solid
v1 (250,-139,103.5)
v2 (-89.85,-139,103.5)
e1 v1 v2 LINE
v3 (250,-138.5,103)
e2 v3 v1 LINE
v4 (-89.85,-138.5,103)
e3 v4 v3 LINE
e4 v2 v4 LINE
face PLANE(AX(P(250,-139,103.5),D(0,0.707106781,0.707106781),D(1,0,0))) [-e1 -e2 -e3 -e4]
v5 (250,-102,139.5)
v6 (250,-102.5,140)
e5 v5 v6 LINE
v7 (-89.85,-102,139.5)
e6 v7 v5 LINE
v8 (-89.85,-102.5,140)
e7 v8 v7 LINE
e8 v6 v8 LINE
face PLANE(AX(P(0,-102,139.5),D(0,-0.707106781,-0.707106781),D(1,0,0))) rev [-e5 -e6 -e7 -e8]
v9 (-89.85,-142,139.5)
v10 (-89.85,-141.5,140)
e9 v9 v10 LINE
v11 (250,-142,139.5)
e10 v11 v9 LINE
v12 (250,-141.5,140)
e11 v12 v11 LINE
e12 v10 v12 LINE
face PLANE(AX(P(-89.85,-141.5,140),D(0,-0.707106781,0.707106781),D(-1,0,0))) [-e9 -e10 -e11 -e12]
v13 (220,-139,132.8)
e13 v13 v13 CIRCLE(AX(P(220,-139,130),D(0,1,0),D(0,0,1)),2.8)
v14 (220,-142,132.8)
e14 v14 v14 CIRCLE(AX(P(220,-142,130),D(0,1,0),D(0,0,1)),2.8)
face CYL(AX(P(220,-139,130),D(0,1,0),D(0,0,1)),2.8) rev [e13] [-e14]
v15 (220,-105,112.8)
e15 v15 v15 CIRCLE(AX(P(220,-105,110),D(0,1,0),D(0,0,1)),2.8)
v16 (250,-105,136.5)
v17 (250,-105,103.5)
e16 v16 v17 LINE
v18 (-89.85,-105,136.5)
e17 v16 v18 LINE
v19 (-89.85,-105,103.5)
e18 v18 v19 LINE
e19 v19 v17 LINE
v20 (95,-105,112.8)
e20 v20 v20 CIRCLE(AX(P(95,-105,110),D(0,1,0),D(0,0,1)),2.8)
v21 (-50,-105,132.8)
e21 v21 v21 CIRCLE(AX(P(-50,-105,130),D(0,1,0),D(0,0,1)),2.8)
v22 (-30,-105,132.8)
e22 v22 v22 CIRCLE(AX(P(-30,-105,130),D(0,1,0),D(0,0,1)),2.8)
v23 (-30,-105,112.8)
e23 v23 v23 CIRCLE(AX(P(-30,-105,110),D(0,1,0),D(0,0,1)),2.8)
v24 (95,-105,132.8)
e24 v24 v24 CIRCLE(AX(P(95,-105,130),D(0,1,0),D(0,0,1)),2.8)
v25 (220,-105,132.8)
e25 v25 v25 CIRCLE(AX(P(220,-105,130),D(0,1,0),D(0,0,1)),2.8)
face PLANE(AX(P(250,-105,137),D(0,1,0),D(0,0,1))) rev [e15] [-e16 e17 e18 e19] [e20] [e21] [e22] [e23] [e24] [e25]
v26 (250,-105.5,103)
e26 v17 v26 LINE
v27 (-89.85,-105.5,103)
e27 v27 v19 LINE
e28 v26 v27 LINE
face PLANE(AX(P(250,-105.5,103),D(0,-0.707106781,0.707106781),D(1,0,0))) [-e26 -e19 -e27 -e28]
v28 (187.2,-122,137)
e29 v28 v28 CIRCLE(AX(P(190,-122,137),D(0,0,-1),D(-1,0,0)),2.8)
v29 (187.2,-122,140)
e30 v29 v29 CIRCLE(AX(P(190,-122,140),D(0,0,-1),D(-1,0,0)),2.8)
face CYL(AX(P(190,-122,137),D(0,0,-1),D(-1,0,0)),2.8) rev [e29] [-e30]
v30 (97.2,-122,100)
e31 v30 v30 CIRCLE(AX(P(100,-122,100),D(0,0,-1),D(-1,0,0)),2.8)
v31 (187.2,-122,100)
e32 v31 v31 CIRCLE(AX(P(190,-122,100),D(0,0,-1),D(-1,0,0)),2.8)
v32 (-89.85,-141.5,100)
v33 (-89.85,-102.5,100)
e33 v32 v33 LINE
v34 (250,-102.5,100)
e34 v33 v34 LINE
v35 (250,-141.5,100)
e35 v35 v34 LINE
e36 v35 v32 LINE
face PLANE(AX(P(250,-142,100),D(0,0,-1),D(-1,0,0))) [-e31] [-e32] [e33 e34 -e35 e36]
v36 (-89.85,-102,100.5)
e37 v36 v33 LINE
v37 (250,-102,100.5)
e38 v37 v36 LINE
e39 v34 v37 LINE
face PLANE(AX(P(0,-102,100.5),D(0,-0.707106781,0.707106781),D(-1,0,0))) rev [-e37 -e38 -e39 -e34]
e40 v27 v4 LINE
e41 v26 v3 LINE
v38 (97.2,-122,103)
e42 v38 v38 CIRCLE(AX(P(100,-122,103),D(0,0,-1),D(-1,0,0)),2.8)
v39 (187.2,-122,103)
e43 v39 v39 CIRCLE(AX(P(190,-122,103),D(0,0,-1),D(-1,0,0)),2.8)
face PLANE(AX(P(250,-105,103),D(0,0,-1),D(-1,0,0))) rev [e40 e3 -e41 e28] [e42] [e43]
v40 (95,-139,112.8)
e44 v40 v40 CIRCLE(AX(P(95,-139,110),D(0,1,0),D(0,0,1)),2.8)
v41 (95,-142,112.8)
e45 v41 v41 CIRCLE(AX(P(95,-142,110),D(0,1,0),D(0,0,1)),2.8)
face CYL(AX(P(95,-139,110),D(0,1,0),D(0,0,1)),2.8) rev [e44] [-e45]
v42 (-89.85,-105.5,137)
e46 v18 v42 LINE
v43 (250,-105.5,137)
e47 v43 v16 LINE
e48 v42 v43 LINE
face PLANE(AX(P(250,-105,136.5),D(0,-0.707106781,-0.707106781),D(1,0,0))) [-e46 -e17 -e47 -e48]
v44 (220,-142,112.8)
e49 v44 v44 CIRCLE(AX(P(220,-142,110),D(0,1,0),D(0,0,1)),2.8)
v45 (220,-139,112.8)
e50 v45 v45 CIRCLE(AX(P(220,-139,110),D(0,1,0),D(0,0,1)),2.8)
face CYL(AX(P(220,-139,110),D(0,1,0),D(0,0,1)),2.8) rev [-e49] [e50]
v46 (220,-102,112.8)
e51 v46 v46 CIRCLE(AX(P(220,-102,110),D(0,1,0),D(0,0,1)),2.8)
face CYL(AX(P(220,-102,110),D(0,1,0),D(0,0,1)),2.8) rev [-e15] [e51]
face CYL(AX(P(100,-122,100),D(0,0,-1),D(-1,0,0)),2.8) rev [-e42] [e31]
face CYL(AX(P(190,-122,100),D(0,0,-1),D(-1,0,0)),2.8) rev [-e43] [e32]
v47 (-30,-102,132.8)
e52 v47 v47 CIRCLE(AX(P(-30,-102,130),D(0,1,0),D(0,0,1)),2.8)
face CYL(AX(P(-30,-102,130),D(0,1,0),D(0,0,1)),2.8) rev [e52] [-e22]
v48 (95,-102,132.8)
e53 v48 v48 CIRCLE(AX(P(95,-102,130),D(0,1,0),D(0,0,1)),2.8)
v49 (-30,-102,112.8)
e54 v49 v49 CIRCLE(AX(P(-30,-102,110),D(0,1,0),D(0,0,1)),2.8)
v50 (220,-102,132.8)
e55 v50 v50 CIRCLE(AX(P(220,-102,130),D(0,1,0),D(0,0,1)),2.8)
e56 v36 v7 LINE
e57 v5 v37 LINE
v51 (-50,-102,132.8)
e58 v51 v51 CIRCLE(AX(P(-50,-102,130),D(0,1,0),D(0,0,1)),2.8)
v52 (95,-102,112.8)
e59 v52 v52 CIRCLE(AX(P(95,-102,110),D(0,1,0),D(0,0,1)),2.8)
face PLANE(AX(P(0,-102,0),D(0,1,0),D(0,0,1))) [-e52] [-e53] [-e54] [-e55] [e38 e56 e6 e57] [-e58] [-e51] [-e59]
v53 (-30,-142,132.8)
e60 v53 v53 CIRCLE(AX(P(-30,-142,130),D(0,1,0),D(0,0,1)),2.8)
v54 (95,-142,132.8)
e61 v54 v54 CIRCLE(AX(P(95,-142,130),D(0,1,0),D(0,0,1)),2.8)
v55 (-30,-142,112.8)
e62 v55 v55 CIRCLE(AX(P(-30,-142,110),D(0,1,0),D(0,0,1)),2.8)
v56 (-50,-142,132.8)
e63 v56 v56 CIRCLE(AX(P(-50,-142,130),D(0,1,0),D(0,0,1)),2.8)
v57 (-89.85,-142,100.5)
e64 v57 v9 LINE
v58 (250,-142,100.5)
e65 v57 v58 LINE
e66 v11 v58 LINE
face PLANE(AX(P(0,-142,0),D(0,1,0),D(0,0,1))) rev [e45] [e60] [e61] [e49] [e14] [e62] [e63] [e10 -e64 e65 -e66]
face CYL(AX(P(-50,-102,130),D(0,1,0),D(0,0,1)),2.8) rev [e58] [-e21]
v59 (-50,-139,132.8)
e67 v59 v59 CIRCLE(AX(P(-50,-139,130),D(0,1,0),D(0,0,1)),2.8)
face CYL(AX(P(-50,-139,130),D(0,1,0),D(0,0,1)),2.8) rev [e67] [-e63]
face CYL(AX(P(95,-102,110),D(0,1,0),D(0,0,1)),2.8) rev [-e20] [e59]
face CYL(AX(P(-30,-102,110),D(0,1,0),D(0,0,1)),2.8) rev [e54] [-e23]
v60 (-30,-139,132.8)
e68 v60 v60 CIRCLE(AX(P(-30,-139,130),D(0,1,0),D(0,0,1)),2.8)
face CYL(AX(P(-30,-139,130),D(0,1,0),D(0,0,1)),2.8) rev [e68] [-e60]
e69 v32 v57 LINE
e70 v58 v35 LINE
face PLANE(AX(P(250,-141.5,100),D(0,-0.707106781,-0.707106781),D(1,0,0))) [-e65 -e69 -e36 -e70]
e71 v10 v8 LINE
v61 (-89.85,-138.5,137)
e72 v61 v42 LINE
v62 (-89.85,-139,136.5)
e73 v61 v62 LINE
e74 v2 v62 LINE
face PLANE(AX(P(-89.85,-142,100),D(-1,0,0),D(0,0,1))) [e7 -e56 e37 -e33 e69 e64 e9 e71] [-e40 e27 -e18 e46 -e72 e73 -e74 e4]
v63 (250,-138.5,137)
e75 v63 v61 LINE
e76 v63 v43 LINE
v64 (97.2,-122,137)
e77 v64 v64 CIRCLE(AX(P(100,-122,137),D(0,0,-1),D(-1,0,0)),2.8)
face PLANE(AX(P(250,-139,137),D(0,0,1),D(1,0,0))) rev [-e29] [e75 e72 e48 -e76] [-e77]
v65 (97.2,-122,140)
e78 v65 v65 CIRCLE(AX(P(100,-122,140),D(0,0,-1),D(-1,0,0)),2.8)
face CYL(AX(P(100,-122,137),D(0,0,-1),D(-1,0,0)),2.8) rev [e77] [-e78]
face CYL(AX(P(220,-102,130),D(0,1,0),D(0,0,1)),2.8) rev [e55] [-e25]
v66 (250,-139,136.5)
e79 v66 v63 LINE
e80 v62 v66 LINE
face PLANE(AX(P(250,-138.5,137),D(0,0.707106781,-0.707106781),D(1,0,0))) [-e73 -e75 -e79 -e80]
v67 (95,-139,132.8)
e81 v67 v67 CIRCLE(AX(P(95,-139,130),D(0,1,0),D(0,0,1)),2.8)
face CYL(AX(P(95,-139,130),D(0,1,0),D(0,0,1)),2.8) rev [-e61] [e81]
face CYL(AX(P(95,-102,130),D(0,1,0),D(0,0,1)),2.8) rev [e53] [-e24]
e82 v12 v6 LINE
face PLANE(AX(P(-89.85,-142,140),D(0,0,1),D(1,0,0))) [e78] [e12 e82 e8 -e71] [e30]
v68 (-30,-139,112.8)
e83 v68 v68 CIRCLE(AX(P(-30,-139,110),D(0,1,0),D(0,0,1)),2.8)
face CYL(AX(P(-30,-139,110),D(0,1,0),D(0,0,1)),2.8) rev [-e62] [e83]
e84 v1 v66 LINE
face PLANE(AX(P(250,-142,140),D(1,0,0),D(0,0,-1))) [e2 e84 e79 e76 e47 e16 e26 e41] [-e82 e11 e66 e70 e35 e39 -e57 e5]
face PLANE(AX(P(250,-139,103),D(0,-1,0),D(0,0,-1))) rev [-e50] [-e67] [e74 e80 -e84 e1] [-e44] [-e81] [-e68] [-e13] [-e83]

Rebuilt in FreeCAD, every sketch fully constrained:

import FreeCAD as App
import Part
import Sketcher
from FreeCAD import Vector
Q = App.Units.Quantity


def edges_at(feature, points):
    """Names of the edges that pass closest to the given points."""
    edges = feature.Shape.Edges
    near = lambda p: min(range(len(edges)), key=lambda i: edges[i].distToShape(Part.Vertex(*p))[0])
    return sorted({f"Edge{near(p) + 1}" for p in points})


def add_polygon(sketch, points):
    """Adds a closed chain of lines whose ends are joined by coincident constraints."""
    first, n = sketch.GeometryCount, len(points)
    for a, b in zip(points, points[1:] + points[:1]):
        sketch.addGeometry(Part.LineSegment(App.Vector(*a, 0), App.Vector(*b, 0)), False)
    for i in range(n):
        sketch.addConstraint(Sketcher.Constraint("Coincident", first + i, 2, first + (i + 1) % n, 1))

doc = App.newDocument("Part")
body = doc.addObject("PartDesign::Body", "Body")

sketch1 = doc.addObject("Sketcher::SketchObject", "Sketch")
body.addObject(sketch1)
sketch1.AttachmentSupport = (doc.XZ_Plane, [""])
sketch1.MapMode = "FlatFace"
sketch1.AttachmentOffset = App.Placement(Vector(0, 0, 102), App.Rotation())
add_polygon(sketch1, [(-90, 100), (-90, 140), (250, 140), (250, 100)])
sketch1.addConstraint([
    Sketcher.Constraint("Vertical", 0),
    Sketcher.Constraint("Horizontal", 1),
    Sketcher.Constraint("Vertical", 2),
    Sketcher.Constraint("Horizontal", 3),
    Sketcher.Constraint("DistanceY", 0, 1, 0, 2, Q("40 mm")),
    Sketcher.Constraint("DistanceY", -1, 1, 0, 2, Q("140 mm")),
    Sketcher.Constraint("DistanceX", -1, 1, 1, 2, Q("250 mm")),
    Sketcher.Constraint("DistanceX", 1, 1, 1, 2, Q("339.85 mm")),
])
pad1 = doc.addObject("PartDesign::Pad", "Pad")
body.addObject(pad1)
pad1.Profile = sketch1
pad1.Length = 40

sketch2 = doc.addObject("Sketcher::SketchObject", "Sketch001")
body.addObject(sketch2)
sketch2.AttachmentSupport = (doc.YZ_Plane, [""])
sketch2.MapMode = "FlatFace"
sketch2.AttachmentOffset = App.Placement(Vector(0, 0, -89.85), App.Rotation())
add_polygon(sketch2, [(-105, 103), (-139, 103), (-139, 137), (-105, 137)])
sketch2.addConstraint([
    Sketcher.Constraint("Horizontal", 0),
    Sketcher.Constraint("Vertical", 1),
    Sketcher.Constraint("Horizontal", 2),
    Sketcher.Constraint("Vertical", 3),
    Sketcher.Constraint("Equal", 2, 1),
    Sketcher.Constraint("DistanceX", 0, 2, 0, 1, Q("34 mm")),
    Sketcher.Constraint("DistanceX", 0, 2, -1, 1, Q("139 mm")),
    Sketcher.Constraint("DistanceY", -1, 1, 0, 2, Q("103 mm")),
])
pocket1 = doc.addObject("PartDesign::Pocket", "Pocket")
body.addObject(pocket1)
pocket1.Profile = sketch2
pocket1.Type = "ThroughAll"
pocket1.Reversed = True

sketch3 = doc.addObject("Sketcher::SketchObject", "Sketch002")
body.addObject(sketch3)
sketch3.AttachmentSupport = (doc.XZ_Plane, [""])
sketch3.MapMode = "FlatFace"
sketch3.AttachmentOffset = App.Placement(Vector(0, 0, 139), App.Rotation())
sketch3.addGeometry([
    Part.Circle(Vector(220, 130, 0), Vector(0, 0, 1), 2.8),
    Part.Circle(Vector(95, 130, 0), Vector(0, 0, 1), 2.8),
    Part.Circle(Vector(220, 110, 0), Vector(0, 0, 1), 2.8),
    Part.Circle(Vector(95, 110, 0), Vector(0, 0, 1), 2.8),
    Part.Circle(Vector(-30, 130, 0), Vector(0, 0, 1), 2.8),
    Part.Circle(Vector(-50, 130, 0), Vector(0, 0, 1), 2.8),
    Part.Circle(Vector(-30, 110, 0), Vector(0, 0, 1), 2.8),
], False)
sketch3.addConstraint([
    Sketcher.Constraint("Equal", 0, 1),
    Sketcher.Constraint("Equal", 1, 2),
    Sketcher.Constraint("Equal", 2, 3),
    Sketcher.Constraint("Equal", 3, 4),
    Sketcher.Constraint("Equal", 4, 5),
    Sketcher.Constraint("Equal", 5, 6),
    Sketcher.Constraint("Horizontal", 0, 3, 1, 3),
    Sketcher.Constraint("Horizontal", 2, 3, 3, 3),
    Sketcher.Constraint("Horizontal", 1, 3, 4, 3),
    Sketcher.Constraint("Horizontal", 4, 3, 5, 3),
    Sketcher.Constraint("Horizontal", 3, 3, 6, 3),
    Sketcher.Constraint("Vertical", 0, 3, 2, 3),
    Sketcher.Constraint("Vertical", 1, 3, 3, 3),
    Sketcher.Constraint("Vertical", 4, 3, 6, 3),
    Sketcher.Constraint("Diameter", 0, Q("5.6 mm")),
    Sketcher.Constraint("DistanceX", -1, 1, 0, 3, Q("220 mm")),
    Sketcher.Constraint("DistanceY", -1, 1, 0, 3, Q("130 mm")),
    Sketcher.Constraint("DistanceX", -1, 1, 1, 3, Q("95 mm")),
    Sketcher.Constraint("DistanceY", -1, 1, 2, 3, Q("110 mm")),
    Sketcher.Constraint("DistanceX", 4, 3, -1, 1, Q("30 mm")),
    Sketcher.Constraint("DistanceX", 5, 3, -1, 1, Q("50 mm")),
])
doc.recompute()
hole = doc.addObject("PartDesign::Hole", "Hole")
body.addObject(hole)
hole.Profile = sketch3
hole.ThreadType = "None"
hole.Diameter = 5.6
hole.DepthType = "Dimension"
hole.Depth = 3
hole.DrillPoint = "Flat"
hole.Reversed = True

sketch4 = doc.addObject("Sketcher::SketchObject", "Sketch003")
body.addObject(sketch4)
sketch4.AttachmentSupport = (doc.XY_Plane, [""])
sketch4.MapMode = "FlatFace"
sketch4.AttachmentOffset = App.Placement(Vector(0, 0, 100), App.Rotation())
sketch4.addGeometry([
    Part.Circle(Vector(190, -122, 0), Vector(0, 0, 1), 2.8),
    Part.Circle(Vector(100, -122, 0), Vector(0, 0, 1), 2.8),
], False)
sketch4.addConstraint([
    Sketcher.Constraint("Equal", 0, 1),
    Sketcher.Constraint("Horizontal", 0, 3, 1, 3),
    Sketcher.Constraint("Diameter", 0, Q("5.6 mm")),
    Sketcher.Constraint("DistanceX", -1, 1, 0, 3, Q("190 mm")),
    Sketcher.Constraint("DistanceY", 0, 3, -1, 1, Q("122 mm")),
    Sketcher.Constraint("DistanceX", -1, 1, 1, 3, Q("100 mm")),
])
doc.recompute()
hole2 = doc.addObject("PartDesign::Hole", "Hole001")
body.addObject(hole2)
hole2.Profile = sketch4
hole2.ThreadType = "None"
hole2.Diameter = 5.6
hole2.DepthType = "Dimension"
hole2.Depth = 3
hole2.DrillPoint = "Flat"
hole2.Reversed = True

sketch5 = doc.addObject("Sketcher::SketchObject", "Sketch004")
body.addObject(sketch5)
sketch5.AttachmentSupport = (doc.XY_Plane, [""])
sketch5.MapMode = "FlatFace"
sketch5.AttachmentOffset = App.Placement(Vector(0, 0, 137), App.Rotation())
sketch5.addGeometry([
    Part.Circle(Vector(190, -122, 0), Vector(0, 0, 1), 2.8),
    Part.Circle(Vector(100, -122, 0), Vector(0, 0, 1), 2.8),
], False)
sketch5.addConstraint([
    Sketcher.Constraint("Equal", 0, 1),
    Sketcher.Constraint("Horizontal", 0, 3, 1, 3),
    Sketcher.Constraint("Diameter", 0, Q("5.6 mm")),
    Sketcher.Constraint("DistanceX", -1, 1, 0, 3, Q("190 mm")),
    Sketcher.Constraint("DistanceY", 0, 3, -1, 1, Q("122 mm")),
    Sketcher.Constraint("DistanceX", -1, 1, 1, 3, Q("100 mm")),
])
doc.recompute()
hole3 = doc.addObject("PartDesign::Hole", "Hole002")
body.addObject(hole3)
hole3.Profile = sketch5
hole3.ThreadType = "None"
hole3.Diameter = 5.6
hole3.DepthType = "ThroughAll"
hole3.Reversed = True

sketch6 = doc.addObject("Sketcher::SketchObject", "Sketch005")
body.addObject(sketch6)
sketch6.AttachmentSupport = (doc.XZ_Plane, [""])
sketch6.MapMode = "FlatFace"
sketch6.AttachmentOffset = App.Placement(Vector(0, 0, 102), App.Rotation())
sketch6.addGeometry([
    Part.Circle(Vector(220, 130, 0), Vector(0, 0, 1), 2.8),
    Part.Circle(Vector(95, 130, 0), Vector(0, 0, 1), 2.8),
    Part.Circle(Vector(220, 110, 0), Vector(0, 0, 1), 2.8),
    Part.Circle(Vector(95, 110, 0), Vector(0, 0, 1), 2.8),
    Part.Circle(Vector(-30, 130, 0), Vector(0, 0, 1), 2.8),
    Part.Circle(Vector(-50, 130, 0), Vector(0, 0, 1), 2.8),
    Part.Circle(Vector(-30, 110, 0), Vector(0, 0, 1), 2.8),
], False)
sketch6.addConstraint([
    Sketcher.Constraint("Equal", 0, 1),
    Sketcher.Constraint("Equal", 1, 2),
    Sketcher.Constraint("Equal", 2, 3),
    Sketcher.Constraint("Equal", 3, 4),
    Sketcher.Constraint("Equal", 4, 5),
    Sketcher.Constraint("Equal", 5, 6),
    Sketcher.Constraint("Horizontal", 0, 3, 1, 3),
    Sketcher.Constraint("Horizontal", 2, 3, 3, 3),
    Sketcher.Constraint("Horizontal", 1, 3, 4, 3),
    Sketcher.Constraint("Horizontal", 4, 3, 5, 3),
    Sketcher.Constraint("Horizontal", 3, 3, 6, 3),
    Sketcher.Constraint("Vertical", 0, 3, 2, 3),
    Sketcher.Constraint("Vertical", 1, 3, 3, 3),
    Sketcher.Constraint("Vertical", 4, 3, 6, 3),
    Sketcher.Constraint("Diameter", 0, Q("5.6 mm")),
    Sketcher.Constraint("DistanceX", -1, 1, 0, 3, Q("220 mm")),
    Sketcher.Constraint("DistanceY", -1, 1, 0, 3, Q("130 mm")),
    Sketcher.Constraint("DistanceX", -1, 1, 1, 3, Q("95 mm")),
    Sketcher.Constraint("DistanceY", -1, 1, 2, 3, Q("110 mm")),
    Sketcher.Constraint("DistanceX", 4, 3, -1, 1, Q("30 mm")),
    Sketcher.Constraint("DistanceX", 5, 3, -1, 1, Q("50 mm")),
])
doc.recompute()
hole4 = doc.addObject("PartDesign::Hole", "Hole003")
body.addObject(hole4)
hole4.Profile = sketch6
hole4.ThreadType = "None"
hole4.Diameter = 5.6
hole4.DepthType = "Dimension"
hole4.Depth = 40
hole4.DrillPoint = "Flat"
hole4.Reversed = True
doc.recompute()

chamfer = doc.addObject("PartDesign::Chamfer", "Chamfer")
body.addObject(chamfer)
chamfer.Base = (hole4, edges_at(hole4, [
    (80.075, -142, 100),
    (80.075, -139, 103),
    (80.075, -105, 103),
    (80.075, -105, 137),
    (80.075, -139, 137),
    (80.075, -142, 140),
    (80.075, -102, 100),
    (80.075, -102, 140),
]))
chamfer.Size = 0.5

doc.recompute()
